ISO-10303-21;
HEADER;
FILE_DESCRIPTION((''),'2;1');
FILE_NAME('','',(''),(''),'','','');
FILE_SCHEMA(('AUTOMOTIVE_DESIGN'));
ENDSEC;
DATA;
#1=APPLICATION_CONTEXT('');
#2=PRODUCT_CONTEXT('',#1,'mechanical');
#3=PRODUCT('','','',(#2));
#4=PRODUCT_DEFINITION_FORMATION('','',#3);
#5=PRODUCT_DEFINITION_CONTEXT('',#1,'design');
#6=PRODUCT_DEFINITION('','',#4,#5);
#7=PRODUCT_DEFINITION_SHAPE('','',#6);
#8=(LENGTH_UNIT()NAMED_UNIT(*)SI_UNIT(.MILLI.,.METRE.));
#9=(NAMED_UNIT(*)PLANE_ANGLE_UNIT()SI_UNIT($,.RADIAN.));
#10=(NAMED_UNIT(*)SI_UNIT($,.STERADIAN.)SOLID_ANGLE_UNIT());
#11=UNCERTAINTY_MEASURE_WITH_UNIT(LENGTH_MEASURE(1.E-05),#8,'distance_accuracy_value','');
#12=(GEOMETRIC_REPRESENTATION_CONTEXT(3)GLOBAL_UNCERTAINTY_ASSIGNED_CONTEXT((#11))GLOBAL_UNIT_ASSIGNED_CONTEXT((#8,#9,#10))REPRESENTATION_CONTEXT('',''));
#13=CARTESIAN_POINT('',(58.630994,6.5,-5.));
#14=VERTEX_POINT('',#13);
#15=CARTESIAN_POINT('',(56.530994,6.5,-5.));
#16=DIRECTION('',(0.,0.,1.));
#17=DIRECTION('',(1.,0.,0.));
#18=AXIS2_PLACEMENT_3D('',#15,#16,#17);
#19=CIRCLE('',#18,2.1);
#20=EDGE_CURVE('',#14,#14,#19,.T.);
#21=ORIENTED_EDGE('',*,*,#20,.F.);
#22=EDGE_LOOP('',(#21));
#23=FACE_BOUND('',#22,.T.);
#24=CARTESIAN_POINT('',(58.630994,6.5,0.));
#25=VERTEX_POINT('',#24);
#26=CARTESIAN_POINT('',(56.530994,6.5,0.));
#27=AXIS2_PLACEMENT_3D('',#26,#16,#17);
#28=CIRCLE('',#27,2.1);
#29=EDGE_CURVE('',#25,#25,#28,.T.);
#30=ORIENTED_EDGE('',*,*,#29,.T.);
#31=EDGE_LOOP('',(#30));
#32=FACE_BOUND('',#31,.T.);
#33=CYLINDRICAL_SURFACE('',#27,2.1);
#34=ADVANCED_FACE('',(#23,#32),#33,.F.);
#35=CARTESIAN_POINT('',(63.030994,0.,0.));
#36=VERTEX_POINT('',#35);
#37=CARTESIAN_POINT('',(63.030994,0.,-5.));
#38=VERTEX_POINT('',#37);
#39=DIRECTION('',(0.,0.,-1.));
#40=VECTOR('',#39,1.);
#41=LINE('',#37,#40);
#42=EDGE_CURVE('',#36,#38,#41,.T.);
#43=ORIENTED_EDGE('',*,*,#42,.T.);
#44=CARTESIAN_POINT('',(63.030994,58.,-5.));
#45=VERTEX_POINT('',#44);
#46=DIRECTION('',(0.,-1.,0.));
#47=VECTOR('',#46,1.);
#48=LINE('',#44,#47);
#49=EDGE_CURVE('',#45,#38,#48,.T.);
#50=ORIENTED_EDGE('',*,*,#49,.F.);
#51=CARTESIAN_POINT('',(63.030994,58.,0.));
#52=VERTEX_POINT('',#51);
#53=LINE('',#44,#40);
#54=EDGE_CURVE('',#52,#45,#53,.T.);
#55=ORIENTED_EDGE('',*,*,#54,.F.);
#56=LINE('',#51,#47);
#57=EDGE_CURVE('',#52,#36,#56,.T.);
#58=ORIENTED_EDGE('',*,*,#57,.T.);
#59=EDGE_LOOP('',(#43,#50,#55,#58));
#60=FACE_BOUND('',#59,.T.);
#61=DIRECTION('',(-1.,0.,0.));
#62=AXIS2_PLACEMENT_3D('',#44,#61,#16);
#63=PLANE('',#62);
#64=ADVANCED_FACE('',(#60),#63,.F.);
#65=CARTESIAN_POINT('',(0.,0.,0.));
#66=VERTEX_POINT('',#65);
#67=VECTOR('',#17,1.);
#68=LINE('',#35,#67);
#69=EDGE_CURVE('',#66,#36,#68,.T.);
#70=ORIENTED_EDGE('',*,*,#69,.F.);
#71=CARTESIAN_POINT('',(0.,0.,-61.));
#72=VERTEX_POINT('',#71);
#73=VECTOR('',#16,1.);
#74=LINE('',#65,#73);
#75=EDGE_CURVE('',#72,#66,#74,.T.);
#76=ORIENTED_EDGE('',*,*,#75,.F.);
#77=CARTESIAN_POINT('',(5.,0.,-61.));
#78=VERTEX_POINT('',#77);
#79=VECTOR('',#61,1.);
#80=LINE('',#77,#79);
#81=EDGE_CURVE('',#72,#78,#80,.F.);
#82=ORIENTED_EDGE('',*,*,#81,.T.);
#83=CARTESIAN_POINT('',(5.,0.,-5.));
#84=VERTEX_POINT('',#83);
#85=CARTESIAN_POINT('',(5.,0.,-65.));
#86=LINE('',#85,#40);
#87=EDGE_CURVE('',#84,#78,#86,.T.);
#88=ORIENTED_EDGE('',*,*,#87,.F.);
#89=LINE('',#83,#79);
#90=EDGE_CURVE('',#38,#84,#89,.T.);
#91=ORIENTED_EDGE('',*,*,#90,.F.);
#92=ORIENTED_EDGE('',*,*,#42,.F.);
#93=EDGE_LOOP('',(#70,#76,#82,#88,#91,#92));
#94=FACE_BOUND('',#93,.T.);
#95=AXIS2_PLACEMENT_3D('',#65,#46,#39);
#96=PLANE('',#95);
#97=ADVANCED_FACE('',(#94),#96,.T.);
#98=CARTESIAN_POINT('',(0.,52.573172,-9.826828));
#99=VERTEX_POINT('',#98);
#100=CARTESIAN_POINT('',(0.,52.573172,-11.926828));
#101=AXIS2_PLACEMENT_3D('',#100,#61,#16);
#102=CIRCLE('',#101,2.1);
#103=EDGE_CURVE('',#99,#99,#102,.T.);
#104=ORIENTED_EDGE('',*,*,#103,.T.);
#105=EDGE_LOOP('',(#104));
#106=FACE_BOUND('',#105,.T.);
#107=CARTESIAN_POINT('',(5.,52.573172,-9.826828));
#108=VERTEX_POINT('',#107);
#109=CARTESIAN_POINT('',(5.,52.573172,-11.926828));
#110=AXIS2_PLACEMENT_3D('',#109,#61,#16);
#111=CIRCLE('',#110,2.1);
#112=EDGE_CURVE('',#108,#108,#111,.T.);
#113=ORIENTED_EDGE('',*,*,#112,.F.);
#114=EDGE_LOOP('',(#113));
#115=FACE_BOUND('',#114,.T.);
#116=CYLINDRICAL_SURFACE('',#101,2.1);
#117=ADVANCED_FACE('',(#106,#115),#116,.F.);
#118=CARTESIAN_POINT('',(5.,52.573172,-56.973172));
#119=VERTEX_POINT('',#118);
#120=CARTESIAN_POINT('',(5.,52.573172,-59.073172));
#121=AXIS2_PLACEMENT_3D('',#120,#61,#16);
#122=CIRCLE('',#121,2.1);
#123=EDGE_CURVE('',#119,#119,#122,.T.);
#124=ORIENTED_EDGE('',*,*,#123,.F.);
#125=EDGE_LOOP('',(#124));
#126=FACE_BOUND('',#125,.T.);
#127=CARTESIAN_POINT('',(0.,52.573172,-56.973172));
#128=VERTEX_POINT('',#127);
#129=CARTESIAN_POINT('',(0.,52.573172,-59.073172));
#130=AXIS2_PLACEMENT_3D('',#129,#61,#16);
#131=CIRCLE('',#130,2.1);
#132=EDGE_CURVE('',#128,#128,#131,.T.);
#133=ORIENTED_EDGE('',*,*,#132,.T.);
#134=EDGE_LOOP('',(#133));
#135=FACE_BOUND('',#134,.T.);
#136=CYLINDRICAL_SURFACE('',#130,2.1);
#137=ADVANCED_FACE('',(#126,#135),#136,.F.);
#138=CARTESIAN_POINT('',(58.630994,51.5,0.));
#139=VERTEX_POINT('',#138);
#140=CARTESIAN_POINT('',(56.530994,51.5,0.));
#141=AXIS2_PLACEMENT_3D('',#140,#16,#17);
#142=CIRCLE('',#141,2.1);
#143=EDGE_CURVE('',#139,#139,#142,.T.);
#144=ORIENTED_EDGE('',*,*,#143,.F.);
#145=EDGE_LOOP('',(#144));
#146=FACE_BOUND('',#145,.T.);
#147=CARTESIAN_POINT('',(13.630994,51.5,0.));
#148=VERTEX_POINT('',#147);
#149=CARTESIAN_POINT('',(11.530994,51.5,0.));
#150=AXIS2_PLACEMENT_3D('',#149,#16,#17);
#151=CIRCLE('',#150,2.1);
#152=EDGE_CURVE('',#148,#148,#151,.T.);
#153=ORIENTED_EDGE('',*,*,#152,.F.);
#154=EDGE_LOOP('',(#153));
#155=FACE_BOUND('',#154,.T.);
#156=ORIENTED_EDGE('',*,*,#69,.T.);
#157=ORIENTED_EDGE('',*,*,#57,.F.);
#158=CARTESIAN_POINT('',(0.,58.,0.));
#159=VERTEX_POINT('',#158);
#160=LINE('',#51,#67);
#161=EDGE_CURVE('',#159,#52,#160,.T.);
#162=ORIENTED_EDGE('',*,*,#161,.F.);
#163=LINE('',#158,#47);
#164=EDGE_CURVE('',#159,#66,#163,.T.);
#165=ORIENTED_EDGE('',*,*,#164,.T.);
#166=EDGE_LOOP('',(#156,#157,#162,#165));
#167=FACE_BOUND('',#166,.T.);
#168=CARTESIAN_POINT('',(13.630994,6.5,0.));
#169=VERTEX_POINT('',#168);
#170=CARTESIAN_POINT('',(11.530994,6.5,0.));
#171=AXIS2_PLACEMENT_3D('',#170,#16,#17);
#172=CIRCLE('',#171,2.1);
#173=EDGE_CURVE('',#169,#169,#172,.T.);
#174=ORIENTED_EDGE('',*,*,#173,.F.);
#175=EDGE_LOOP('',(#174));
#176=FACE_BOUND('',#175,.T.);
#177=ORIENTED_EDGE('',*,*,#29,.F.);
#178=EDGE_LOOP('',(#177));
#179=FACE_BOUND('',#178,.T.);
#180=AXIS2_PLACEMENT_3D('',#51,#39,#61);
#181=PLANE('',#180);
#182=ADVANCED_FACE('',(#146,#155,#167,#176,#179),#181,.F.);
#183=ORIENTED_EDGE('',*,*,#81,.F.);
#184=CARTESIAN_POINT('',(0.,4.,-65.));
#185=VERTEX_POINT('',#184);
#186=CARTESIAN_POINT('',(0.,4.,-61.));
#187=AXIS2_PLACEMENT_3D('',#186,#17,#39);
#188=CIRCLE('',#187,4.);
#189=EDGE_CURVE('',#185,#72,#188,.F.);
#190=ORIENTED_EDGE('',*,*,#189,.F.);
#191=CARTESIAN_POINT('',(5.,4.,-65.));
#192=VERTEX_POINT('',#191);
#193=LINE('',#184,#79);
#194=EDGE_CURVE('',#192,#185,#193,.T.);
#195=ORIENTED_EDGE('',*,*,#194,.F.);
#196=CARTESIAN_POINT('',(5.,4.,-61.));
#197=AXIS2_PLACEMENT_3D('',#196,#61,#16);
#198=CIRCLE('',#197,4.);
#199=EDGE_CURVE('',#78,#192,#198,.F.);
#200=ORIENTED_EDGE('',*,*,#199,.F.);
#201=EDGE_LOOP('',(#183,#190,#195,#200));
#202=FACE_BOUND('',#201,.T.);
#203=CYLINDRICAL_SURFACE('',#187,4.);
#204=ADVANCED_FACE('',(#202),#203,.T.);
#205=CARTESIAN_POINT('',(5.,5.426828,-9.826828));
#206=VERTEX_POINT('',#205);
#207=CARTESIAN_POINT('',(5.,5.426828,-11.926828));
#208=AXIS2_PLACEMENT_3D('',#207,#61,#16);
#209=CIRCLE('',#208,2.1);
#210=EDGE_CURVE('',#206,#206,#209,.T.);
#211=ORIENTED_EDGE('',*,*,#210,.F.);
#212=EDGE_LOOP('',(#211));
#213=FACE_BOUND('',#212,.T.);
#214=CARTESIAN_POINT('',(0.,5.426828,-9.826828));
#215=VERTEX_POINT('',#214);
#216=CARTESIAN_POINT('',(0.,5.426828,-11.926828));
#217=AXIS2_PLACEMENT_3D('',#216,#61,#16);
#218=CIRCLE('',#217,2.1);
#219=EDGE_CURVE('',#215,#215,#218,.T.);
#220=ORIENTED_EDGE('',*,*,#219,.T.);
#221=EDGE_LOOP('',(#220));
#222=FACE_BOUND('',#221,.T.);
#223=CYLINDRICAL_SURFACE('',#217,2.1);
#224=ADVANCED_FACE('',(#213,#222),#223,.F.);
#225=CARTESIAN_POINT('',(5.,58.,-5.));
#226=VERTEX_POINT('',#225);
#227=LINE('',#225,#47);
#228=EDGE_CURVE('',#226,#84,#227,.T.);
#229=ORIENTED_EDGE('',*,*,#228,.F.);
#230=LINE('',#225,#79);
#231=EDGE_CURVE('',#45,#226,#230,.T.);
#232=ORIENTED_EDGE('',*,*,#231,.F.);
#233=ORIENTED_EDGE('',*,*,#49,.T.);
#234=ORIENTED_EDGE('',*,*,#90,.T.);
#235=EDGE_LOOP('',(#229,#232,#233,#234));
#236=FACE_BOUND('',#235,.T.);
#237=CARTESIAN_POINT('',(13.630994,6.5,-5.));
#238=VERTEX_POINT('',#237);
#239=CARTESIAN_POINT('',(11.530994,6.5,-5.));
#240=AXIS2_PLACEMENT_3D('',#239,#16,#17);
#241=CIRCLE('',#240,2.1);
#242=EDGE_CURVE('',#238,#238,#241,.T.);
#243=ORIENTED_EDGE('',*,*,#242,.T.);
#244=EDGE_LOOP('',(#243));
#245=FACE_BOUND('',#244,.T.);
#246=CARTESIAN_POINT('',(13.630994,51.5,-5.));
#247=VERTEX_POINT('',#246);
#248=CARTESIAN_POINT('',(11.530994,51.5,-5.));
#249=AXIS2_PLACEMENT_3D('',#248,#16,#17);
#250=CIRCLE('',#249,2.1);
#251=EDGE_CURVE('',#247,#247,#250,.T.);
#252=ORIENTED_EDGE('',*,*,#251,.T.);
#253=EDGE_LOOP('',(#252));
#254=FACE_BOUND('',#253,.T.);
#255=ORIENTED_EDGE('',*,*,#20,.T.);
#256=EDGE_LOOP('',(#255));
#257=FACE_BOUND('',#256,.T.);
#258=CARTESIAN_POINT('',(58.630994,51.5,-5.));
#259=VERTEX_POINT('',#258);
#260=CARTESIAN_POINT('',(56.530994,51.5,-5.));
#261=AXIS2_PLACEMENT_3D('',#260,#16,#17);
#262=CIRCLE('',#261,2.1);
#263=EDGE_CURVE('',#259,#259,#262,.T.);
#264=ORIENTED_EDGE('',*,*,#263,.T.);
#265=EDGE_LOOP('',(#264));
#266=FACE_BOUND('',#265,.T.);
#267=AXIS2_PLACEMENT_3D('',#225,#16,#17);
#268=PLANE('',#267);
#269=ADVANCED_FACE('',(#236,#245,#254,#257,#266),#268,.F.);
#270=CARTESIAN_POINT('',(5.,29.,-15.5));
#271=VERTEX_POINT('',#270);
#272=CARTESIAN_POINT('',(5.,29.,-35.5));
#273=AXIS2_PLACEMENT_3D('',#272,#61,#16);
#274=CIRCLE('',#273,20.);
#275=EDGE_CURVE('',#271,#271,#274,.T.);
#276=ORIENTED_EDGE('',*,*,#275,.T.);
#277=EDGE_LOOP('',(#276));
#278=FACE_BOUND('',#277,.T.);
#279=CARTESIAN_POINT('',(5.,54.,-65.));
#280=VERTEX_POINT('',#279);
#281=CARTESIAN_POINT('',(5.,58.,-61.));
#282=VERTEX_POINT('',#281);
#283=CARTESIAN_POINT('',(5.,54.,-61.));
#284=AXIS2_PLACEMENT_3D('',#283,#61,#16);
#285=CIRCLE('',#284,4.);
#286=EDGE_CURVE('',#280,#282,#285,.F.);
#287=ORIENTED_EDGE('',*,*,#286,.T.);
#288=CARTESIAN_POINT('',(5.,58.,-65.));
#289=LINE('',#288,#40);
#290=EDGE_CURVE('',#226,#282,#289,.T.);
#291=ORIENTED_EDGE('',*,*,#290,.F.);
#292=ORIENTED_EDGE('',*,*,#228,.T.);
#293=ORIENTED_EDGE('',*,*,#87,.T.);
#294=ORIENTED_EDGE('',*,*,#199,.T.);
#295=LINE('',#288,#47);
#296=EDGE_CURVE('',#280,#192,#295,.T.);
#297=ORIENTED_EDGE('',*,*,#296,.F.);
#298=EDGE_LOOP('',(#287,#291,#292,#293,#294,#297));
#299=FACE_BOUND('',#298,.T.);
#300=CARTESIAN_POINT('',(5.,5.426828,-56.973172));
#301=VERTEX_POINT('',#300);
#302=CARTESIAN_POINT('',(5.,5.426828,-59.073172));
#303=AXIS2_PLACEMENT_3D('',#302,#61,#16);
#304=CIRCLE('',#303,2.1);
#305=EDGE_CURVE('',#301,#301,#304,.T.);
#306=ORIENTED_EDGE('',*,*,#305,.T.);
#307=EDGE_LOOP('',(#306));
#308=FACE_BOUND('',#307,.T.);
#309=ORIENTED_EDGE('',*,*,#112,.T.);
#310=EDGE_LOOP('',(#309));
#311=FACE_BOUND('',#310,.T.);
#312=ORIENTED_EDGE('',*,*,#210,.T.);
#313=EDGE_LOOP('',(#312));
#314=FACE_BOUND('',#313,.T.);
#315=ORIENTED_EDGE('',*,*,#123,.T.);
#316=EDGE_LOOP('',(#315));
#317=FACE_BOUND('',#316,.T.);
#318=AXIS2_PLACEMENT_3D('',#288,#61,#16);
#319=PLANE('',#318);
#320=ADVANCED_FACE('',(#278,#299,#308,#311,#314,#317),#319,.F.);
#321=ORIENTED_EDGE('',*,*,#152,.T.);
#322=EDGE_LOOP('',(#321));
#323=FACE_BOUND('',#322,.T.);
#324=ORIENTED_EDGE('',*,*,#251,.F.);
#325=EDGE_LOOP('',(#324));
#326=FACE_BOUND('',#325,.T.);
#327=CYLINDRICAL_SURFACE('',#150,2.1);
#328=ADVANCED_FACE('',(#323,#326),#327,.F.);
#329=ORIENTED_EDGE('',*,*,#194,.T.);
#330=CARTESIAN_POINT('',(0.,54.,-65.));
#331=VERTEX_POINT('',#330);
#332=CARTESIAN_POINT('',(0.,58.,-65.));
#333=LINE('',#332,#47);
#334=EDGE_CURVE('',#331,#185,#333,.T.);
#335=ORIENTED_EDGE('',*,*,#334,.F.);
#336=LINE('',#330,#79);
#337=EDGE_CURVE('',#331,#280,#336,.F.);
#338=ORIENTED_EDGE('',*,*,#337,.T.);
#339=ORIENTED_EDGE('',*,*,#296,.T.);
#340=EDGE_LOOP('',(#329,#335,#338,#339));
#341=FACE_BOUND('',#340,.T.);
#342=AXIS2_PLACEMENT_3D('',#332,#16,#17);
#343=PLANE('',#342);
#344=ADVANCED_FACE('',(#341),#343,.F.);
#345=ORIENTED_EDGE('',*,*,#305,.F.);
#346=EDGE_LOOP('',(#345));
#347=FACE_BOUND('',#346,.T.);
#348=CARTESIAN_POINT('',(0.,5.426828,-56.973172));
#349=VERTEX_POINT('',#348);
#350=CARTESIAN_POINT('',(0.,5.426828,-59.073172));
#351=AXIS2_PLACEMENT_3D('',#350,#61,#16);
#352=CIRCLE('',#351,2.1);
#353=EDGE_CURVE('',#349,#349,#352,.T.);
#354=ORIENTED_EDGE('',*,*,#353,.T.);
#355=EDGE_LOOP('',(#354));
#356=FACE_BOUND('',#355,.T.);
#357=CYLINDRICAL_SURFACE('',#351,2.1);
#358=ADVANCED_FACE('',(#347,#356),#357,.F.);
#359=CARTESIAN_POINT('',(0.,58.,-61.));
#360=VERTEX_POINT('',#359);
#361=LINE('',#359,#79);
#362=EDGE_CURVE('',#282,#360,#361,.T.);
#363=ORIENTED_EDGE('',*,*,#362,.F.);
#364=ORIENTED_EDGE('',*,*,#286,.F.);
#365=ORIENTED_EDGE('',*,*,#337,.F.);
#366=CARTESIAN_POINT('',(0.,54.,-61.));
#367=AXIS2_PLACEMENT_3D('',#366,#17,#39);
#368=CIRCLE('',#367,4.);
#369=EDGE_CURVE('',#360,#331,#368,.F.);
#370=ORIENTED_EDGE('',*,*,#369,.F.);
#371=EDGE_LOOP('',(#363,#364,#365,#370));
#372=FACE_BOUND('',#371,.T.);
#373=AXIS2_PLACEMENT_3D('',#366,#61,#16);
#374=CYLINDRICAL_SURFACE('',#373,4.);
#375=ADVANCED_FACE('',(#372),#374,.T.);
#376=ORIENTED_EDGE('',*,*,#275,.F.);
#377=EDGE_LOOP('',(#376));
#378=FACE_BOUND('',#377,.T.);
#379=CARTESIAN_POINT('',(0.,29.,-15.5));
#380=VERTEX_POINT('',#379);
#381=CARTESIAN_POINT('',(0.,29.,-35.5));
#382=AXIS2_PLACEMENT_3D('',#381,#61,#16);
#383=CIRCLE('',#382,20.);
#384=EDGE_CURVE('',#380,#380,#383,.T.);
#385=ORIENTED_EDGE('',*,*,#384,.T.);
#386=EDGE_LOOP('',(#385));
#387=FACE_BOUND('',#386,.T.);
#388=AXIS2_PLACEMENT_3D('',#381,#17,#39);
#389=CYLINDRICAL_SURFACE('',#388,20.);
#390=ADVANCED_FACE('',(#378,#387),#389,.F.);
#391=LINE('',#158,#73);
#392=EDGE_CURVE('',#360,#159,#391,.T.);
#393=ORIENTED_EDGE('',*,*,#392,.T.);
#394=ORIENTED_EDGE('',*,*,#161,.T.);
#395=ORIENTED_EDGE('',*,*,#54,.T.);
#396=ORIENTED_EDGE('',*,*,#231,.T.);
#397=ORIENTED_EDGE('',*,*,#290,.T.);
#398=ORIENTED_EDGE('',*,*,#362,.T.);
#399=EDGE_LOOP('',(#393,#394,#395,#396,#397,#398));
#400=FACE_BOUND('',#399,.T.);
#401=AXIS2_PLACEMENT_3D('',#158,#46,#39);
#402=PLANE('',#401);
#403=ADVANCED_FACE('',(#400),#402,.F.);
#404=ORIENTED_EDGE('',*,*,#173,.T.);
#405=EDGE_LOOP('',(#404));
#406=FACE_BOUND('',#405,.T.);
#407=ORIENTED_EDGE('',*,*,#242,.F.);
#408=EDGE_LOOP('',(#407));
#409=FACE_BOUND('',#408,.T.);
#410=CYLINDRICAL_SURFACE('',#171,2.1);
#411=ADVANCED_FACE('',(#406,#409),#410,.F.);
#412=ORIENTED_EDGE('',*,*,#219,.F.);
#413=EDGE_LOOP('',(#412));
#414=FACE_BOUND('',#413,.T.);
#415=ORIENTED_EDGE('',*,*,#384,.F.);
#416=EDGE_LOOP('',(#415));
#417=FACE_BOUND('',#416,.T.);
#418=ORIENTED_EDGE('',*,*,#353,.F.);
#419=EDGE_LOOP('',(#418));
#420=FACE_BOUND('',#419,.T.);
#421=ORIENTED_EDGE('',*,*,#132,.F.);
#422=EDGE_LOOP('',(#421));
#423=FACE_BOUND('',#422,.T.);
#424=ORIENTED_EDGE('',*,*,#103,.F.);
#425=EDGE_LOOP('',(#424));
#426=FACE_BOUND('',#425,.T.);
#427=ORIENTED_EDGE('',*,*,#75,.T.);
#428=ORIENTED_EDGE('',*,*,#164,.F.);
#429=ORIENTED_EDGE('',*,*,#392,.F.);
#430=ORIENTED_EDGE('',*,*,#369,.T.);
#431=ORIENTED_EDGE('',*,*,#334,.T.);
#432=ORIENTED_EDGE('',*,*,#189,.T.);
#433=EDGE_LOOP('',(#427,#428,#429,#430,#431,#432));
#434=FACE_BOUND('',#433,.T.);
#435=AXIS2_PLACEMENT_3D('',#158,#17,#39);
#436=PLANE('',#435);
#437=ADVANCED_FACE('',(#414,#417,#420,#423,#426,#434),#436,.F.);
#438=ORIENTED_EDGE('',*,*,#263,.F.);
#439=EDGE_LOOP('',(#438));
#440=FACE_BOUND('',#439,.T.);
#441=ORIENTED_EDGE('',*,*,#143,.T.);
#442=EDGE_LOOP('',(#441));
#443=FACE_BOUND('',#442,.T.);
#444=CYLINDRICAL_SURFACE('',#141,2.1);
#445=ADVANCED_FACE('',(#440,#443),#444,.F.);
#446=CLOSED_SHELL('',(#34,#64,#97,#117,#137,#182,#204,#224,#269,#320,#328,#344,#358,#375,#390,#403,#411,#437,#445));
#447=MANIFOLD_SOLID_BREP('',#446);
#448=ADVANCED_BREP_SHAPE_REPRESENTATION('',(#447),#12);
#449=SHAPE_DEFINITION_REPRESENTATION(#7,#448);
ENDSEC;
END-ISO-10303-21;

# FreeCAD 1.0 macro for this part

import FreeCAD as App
import Part
import Sketcher
from FreeCAD import Vector


def edges_at(feature, points):
    """Names of the edges that pass closest to the given points."""
    edges = feature.Shape.Edges
    near = lambda p: min(range(len(edges)), key=lambda i: edges[i].distToShape(Part.Vertex(*p))[0])
    return sorted({f"Edge{near(p) + 1}" for p in points})


def add_polygon(sketch, points):
    """Adds a closed chain of lines whose ends are joined by coincident constraints."""
    first, n = sketch.GeometryCount, len(points)
    for a, b in zip(points, points[1:] + points[:1]):
        sketch.addGeometry(Part.LineSegment(App.Vector(*a, 0), App.Vector(*b, 0)), False)
    for i in range(n):
        sketch.addConstraint(Sketcher.Constraint("Coincident", first + i, 2, first + (i + 1) % n, 1))

doc = App.newDocument("Part")
body = doc.addObject("PartDesign::Body", "Body")

sketch1 = body.newObject("Sketcher::SketchObject", "Sketch")
sketch1.AttachmentSupport = (doc.getObject("XZ_Plane"), [""])
sketch1.MapMode = "FlatFace"
add_polygon(sketch1, [(0, -65), (0, 0), (63.030994, 0), (63.030994, -5), (5, -5), (5, -65)])
sketch1.addConstraint([
    Sketcher.Constraint("Vertical", 0),
    Sketcher.Constraint("Horizontal", 1),
    Sketcher.Constraint("Vertical", 2),
    Sketcher.Constraint("Horizontal", 3),
    Sketcher.Constraint("Vertical", 4),
    Sketcher.Constraint("Horizontal", 5),
    Sketcher.Constraint("Coincident", 0, 2, -1, 1),
    Sketcher.Constraint("Equal", 5, 2),
    Sketcher.Constraint("DistanceX", 5, 2, 5, 1, 5.0),
    Sketcher.Constraint("DistanceY", 0, 1, 0, 2, 65.0),
    Sketcher.Constraint("DistanceX", 1, 1, 1, 2, 63.030994),
])
pad1 = body.newObject("PartDesign::Pad", "Pad")
pad1.Profile = sketch1
pad1.Length = 58
pad1.Reversed = True

sketch2 = body.newObject("Sketcher::SketchObject", "Sketch001")
sketch2.AttachmentSupport = (doc.getObject("YZ_Plane"), [""])
sketch2.MapMode = "FlatFace"
sketch2.AttachmentOffset = App.Placement(Vector(0, 0, 5), App.Rotation())
sketch2.addGeometry(Part.Circle(Vector(29, -35.5, 0), Vector(0, 0, 1), 20), False)
sketch2.addConstraint([
    Sketcher.Constraint("Diameter", 0, 40.0),
    Sketcher.Constraint("DistanceX", -1, 1, 0, 3, 29.0),
    Sketcher.Constraint("DistanceY", 0, 3, -1, 1, 35.5),
])
pocket1 = body.newObject("PartDesign::Pocket", "Pocket")
pocket1.Profile = sketch2
pocket1.Type = "ThroughAll"

sketch3 = body.newObject("Sketcher::SketchObject", "Sketch002")
sketch3.AttachmentSupport = (doc.getObject("XY_Plane"), [""])
sketch3.MapMode = "FlatFace"
sketch3.addGeometry([
    Part.Circle(Vector(11.530994, 6.5, 0), Vector(0, 0, 1), 2.1),
    Part.Circle(Vector(11.530994, 51.5, 0), Vector(0, 0, 1), 2.1),
    Part.Circle(Vector(56.530994, 51.5, 0), Vector(0, 0, 1), 2.1),
    Part.Circle(Vector(56.530994, 6.5, 0), Vector(0, 0, 1), 2.1),
], False)
sketch3.addConstraint([
    Sketcher.Constraint("Equal", 0, 1),
    Sketcher.Constraint("Equal", 1, 2),
    Sketcher.Constraint("Equal", 2, 3),
    Sketcher.Constraint("Horizontal", 1, 3, 2, 3),
    Sketcher.Constraint("Horizontal", 0, 3, 3, 3),
    Sketcher.Constraint("Vertical", 0, 3, 1, 3),
    Sketcher.Constraint("Vertical", 2, 3, 3, 3),
    Sketcher.Constraint("Diameter", 0, 4.2),
    Sketcher.Constraint("DistanceY", 0, 3, 1, 3, 45.0),
    Sketcher.Constraint("DistanceX", 1, 3, 2, 3, 45.0),
    Sketcher.Constraint("DistanceY", -1, 1, 0, 3, 6.5),
    Sketcher.Constraint("DistanceX", -1, 1, 0, 3, 11.530994),
])
doc.recompute()
hole = body.newObject("PartDesign::Hole", "Hole")
hole.Profile = sketch3
hole.ThreadType = "None"
hole.Diameter = 4.2
hole.DepthType = "ThroughAll"

sketch4 = body.newObject("Sketcher::SketchObject", "Sketch003")
sketch4.AttachmentSupport = (doc.getObject("YZ_Plane"), [""])
sketch4.MapMode = "FlatFace"
sketch4.addGeometry([
    Part.Circle(Vector(5.426828, -11.926828, 0), Vector(0, 0, 1), 2.1),
    Part.Circle(Vector(52.573172, -11.926828, 0), Vector(0, 0, 1), 2.1),
    Part.Circle(Vector(52.573172, -59.073172, 0), Vector(0, 0, 1), 2.1),
    Part.Circle(Vector(5.426828, -59.073172, 0), Vector(0, 0, 1), 2.1),
], False)
sketch4.addConstraint([
    Sketcher.Constraint("Equal", 0, 1),
    Sketcher.Constraint("Equal", 1, 2),
    Sketcher.Constraint("Equal", 2, 3),
    Sketcher.Constraint("Horizontal", 0, 3, 1, 3),
    Sketcher.Constraint("Horizontal", 2, 3, 3, 3),
    Sketcher.Constraint("Vertical", 1, 3, 2, 3),
    Sketcher.Constraint("Vertical", 0, 3, 3, 3),
    Sketcher.Constraint("Diameter", 0, 4.2),
    Sketcher.Constraint("DistanceX", -1, 1, 0, 3, 5.426828),
    Sketcher.Constraint("DistanceY", 0, 3, -1, 1, 11.926828),
    Sketcher.Constraint("DistanceX", -1, 1, 1, 3, 52.573172),
    Sketcher.Constraint("DistanceY", 2, 3, -1, 1, 59.073172),
])
doc.recompute()
hole2 = body.newObject("PartDesign::Hole", "Hole001")
hole2.Profile = sketch4
hole2.ThreadType = "None"
hole2.Diameter = 4.2
hole2.DepthType = "ThroughAll"
hole2.Reversed = True
doc.recompute()

fillet = body.newObject("PartDesign::Fillet", "Fillet")
fillet.Base = (hole2, edges_at(hole2, [(2.5, 58, -65), (2.5, 0, -65)]))
fillet.Radius = 4

doc.recompute()
